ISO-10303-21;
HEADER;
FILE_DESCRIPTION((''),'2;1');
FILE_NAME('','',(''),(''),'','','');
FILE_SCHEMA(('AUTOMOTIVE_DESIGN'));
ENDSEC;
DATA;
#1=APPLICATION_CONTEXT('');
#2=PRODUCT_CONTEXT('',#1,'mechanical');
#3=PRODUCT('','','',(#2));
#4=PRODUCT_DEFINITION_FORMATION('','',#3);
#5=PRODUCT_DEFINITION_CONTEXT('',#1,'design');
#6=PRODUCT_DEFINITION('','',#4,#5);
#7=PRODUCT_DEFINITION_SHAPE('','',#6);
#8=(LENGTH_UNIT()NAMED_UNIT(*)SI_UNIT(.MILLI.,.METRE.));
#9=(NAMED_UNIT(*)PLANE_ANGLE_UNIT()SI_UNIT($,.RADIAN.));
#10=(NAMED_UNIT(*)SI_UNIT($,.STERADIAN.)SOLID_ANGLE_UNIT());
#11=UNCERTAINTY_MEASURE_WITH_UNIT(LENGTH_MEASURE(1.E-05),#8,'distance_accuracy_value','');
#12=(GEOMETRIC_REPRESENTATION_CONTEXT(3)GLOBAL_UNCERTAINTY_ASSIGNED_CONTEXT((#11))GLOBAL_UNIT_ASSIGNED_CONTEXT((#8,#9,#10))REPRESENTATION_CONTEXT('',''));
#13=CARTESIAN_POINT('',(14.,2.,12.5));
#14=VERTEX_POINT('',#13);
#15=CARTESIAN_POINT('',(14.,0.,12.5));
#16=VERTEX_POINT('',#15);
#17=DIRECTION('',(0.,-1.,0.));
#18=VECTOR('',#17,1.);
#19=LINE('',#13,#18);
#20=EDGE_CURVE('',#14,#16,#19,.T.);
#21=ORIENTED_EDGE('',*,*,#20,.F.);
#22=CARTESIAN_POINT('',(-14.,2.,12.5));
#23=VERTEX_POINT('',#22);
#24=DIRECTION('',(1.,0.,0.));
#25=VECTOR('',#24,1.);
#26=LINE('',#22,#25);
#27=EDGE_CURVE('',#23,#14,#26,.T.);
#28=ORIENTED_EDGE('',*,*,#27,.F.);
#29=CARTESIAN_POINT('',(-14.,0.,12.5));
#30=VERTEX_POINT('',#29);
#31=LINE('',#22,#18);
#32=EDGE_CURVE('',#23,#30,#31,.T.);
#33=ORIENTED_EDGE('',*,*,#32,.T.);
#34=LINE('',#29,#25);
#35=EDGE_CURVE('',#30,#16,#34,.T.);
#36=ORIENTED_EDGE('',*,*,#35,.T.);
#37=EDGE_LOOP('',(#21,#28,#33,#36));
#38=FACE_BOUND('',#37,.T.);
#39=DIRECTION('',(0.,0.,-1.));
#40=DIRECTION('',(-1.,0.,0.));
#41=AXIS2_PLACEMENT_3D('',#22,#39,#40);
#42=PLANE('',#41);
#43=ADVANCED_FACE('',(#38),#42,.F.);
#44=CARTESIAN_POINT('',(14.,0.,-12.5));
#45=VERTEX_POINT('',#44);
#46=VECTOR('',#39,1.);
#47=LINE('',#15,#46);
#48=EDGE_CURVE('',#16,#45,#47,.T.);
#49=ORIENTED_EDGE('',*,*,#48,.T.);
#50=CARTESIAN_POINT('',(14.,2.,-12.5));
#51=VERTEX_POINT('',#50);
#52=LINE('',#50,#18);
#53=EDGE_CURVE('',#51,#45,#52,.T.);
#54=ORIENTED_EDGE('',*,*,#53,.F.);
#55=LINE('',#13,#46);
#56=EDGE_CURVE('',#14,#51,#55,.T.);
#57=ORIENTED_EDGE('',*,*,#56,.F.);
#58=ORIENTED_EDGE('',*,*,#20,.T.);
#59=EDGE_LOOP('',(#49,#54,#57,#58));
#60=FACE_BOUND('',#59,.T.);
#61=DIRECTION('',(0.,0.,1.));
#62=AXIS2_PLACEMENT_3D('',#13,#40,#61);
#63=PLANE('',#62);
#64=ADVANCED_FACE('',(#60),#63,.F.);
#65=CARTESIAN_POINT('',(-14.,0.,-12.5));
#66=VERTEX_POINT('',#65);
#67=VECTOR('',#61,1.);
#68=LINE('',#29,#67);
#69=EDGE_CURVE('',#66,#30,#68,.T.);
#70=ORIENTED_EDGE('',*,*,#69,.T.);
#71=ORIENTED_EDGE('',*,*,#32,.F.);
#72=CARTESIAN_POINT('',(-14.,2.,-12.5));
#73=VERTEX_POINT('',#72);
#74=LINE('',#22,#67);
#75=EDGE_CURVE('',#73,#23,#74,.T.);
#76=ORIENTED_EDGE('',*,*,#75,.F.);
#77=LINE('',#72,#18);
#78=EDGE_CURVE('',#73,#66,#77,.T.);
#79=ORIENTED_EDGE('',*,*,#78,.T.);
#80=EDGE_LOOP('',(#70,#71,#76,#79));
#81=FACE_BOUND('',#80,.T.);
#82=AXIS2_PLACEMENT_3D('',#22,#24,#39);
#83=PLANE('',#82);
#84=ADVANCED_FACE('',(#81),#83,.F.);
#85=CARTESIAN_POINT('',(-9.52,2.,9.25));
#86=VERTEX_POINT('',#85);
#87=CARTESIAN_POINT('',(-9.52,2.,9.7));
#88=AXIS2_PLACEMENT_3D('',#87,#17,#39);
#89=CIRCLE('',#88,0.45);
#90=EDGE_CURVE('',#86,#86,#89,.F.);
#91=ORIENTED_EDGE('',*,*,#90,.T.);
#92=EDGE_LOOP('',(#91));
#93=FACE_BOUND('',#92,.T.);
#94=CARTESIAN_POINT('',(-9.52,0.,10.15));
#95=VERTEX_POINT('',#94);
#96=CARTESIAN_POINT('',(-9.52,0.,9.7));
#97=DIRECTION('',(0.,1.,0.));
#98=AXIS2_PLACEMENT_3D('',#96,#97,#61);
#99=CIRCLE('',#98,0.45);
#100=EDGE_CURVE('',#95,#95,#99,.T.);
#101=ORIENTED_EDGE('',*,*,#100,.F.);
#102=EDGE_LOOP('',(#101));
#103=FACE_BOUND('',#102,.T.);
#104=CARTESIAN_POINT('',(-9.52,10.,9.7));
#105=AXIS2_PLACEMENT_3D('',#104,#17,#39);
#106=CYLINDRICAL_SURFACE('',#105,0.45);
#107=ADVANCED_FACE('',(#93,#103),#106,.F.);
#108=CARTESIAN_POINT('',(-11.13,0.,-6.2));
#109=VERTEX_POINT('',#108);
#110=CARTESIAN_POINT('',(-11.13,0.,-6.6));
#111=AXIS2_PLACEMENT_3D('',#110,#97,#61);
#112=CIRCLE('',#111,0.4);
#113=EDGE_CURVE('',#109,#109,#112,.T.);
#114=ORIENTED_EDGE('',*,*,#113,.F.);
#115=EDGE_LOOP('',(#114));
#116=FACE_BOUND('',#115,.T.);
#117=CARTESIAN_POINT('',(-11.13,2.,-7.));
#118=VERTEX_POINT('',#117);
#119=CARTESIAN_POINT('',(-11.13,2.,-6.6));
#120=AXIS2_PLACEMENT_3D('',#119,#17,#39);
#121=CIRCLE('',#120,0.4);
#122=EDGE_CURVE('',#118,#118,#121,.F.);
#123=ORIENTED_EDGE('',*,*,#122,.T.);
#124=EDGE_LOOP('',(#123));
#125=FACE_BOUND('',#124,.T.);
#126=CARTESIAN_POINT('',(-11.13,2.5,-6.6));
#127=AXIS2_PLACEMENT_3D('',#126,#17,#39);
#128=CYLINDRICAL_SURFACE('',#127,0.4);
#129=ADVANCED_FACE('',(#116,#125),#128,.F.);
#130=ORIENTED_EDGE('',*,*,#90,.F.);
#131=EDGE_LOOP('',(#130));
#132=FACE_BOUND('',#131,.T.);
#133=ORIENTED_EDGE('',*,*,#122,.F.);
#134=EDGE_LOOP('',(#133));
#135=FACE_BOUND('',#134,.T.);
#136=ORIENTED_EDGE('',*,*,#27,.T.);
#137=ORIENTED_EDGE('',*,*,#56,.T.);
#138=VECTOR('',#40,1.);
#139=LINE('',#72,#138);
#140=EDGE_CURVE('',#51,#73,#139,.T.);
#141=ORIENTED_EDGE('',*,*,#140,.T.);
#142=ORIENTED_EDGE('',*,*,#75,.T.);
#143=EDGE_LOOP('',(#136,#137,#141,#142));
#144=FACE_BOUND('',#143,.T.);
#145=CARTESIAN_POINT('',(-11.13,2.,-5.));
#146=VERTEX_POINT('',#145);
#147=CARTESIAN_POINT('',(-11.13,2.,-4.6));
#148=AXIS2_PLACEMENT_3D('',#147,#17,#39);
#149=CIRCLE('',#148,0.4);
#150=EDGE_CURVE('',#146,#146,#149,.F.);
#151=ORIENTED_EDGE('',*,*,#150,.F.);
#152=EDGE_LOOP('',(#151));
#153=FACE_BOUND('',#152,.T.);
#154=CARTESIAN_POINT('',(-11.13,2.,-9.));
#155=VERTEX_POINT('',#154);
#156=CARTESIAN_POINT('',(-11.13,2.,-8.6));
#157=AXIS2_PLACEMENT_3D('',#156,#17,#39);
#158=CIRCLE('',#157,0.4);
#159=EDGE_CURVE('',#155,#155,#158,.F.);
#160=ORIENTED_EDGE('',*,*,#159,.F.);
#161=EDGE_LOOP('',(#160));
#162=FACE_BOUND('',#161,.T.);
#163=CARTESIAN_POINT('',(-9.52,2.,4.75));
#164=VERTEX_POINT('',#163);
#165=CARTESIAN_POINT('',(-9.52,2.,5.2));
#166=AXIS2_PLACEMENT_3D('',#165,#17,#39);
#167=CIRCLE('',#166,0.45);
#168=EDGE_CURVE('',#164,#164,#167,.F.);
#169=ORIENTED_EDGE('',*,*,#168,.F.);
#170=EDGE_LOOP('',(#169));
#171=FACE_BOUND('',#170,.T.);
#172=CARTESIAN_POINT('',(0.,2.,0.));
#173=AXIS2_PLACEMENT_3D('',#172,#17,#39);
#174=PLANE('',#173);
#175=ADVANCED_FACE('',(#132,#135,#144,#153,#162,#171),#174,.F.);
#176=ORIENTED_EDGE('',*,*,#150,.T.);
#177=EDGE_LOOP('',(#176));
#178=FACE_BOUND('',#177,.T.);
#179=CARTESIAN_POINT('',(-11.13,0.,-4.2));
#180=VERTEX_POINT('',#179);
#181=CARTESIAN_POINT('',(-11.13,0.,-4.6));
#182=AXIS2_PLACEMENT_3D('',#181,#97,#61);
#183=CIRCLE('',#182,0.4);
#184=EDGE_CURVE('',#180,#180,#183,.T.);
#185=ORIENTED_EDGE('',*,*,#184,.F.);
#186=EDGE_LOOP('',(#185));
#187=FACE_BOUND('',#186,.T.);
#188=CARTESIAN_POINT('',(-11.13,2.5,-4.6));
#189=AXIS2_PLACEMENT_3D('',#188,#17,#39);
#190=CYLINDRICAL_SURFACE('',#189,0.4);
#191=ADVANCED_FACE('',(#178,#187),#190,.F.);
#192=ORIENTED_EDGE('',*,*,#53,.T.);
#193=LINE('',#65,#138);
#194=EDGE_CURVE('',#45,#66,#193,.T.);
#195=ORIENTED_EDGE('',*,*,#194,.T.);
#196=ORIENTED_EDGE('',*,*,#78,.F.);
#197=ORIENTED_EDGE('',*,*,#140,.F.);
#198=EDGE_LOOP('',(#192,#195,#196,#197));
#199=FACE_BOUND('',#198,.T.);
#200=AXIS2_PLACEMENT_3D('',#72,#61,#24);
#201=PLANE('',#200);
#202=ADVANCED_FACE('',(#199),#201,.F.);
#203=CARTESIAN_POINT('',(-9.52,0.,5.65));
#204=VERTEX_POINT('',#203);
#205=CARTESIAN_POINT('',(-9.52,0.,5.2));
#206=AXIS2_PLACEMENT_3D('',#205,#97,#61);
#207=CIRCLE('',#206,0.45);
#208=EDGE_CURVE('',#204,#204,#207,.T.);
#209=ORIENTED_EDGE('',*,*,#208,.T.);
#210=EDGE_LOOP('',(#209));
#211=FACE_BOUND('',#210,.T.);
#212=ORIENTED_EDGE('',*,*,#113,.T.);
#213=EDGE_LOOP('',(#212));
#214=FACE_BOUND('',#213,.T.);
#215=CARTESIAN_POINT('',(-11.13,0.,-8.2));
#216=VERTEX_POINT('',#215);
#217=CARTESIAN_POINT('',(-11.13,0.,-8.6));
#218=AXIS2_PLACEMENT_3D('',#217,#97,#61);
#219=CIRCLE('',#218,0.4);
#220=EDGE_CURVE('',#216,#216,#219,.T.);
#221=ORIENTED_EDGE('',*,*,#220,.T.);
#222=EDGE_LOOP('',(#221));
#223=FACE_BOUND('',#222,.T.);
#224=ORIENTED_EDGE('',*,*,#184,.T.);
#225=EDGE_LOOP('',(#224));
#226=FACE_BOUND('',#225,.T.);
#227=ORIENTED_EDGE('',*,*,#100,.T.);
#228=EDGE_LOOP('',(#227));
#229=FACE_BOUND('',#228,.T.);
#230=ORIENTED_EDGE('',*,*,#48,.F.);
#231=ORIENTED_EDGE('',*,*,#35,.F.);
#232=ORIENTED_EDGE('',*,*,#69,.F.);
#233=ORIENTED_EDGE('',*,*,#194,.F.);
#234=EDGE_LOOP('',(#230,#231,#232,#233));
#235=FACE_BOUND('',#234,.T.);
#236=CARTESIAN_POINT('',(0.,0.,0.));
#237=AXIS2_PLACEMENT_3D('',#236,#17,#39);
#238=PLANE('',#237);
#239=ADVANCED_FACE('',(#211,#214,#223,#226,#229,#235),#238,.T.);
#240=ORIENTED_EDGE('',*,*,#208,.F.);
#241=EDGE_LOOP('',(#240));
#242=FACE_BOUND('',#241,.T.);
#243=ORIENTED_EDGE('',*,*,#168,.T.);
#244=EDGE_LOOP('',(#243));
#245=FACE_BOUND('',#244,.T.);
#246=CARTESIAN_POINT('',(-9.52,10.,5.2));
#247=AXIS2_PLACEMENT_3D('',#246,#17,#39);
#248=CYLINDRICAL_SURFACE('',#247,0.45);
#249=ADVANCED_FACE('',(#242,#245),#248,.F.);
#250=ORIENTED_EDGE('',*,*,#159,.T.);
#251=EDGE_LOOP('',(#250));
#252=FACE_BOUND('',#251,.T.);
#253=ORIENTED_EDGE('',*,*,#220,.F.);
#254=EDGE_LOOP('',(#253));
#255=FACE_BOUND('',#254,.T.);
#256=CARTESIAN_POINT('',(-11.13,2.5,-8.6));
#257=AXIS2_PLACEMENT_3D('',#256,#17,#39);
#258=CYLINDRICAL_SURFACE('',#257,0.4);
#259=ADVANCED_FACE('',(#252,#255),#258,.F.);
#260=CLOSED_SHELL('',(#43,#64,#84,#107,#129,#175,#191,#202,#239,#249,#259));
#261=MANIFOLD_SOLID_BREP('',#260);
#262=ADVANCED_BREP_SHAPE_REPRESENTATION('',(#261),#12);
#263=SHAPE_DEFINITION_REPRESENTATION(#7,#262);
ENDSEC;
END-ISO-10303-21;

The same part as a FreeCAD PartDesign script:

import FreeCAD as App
import Part
import Sketcher
Q = App.Units.Quantity


def add_polygon(sketch, points):
    """Adds a closed chain of lines whose ends are joined by coincident constraints."""
    first, n = sketch.GeometryCount, len(points)
    for a, b in zip(points, points[1:] + points[:1]):
        sketch.addGeometry(Part.LineSegment(App.Vector(*a, 0), App.Vector(*b, 0)), False)
    for i in range(n):
        sketch.addConstraint(Sketcher.Constraint("Coincident", first + i, 2, first + (i + 1) % n, 1))

doc = App.newDocument("Part")
body = doc.addObject("PartDesign::Body", "Body")

sketch1 = body.newObject("Sketcher::SketchObject", "Sketch")
sketch1.AttachmentSupport = (doc.getObject("XZ_Plane"), [""])
sketch1.MapMode = "FlatFace"
add_polygon(sketch1, [(-14, -12), (-14, 12), (14, 12), (14, -12)])
sketch1.addConstraint([
    Sketcher.Constraint("Vertical", 0),
    Sketcher.Constraint("Horizontal", 1),
    Sketcher.Constraint("Vertical", 2),
    Sketcher.Constraint("Horizontal", 3),
    Sketcher.Constraint("Symmetric", 0, 2, 2, 2, -1, 1),
    Sketcher.Constraint("DistanceX", 1, 1, 1, 2, Q("28 mm")),
    Sketcher.Constraint("DistanceY", 0, 1, 0, 2, Q("25 mm")),
])
pad1 = body.newObject("PartDesign::Pad", "Pad")
pad1.Profile = sketch1
pad1.Length = 2
pad1.Reversed = True

sketch2 = body.newObject("Sketcher::SketchObject", "Sketch001")
sketch2.AttachmentSupport = (doc.getObject("XZ_Plane"), [""])
sketch2.MapMode = "FlatFace"
sketch2.addGeometry([
    Part.Circle(App.Vector(-9.52, 5.2, 0), App.Vector(0, 0, 1), 0.45),
    Part.Circle(App.Vector(-9.52, 9.7, 0), App.Vector(0, 0, 1), 0.45),
], False)
sketch2.addConstraint([
    Sketcher.Constraint("Equal", 0, 1),
    Sketcher.Constraint("Vertical", 0, 3, 1, 3),
    Sketcher.Constraint("Diameter", 0, Q("0.9 mm")),
    Sketcher.Constraint("DistanceY", -1, 1, 0, 3, Q("5.2 mm")),
    Sketcher.Constraint("DistanceY", -1, 1, 1, 3, Q("9.7 mm")),
    Sketcher.Constraint("DistanceX", 0, 3, -1, 1, Q("9.52 mm")),
])
pocket1 = body.newObject("PartDesign::Pocket", "Pocket")
pocket1.Profile = sketch2
pocket1.Length = 10

sketch3 = body.newObject("Sketcher::SketchObject", "Sketch002")
sketch3.AttachmentSupport = (doc.getObject("XZ_Plane"), [""])
sketch3.MapMode = "FlatFace"
sketch3.addGeometry([
    Part.Circle(App.Vector(-11.13, -6.6, 0), App.Vector(0, 0, 1), 0.4),
    Part.Circle(App.Vector(-11.13, -8.6, 0), App.Vector(0, 0, 1), 0.4),
    Part.Circle(App.Vector(-11.13, -4.6, 0), App.Vector(0, 0, 1), 0.4),
], False)
sketch3.addConstraint([
    Sketcher.Constraint("Equal", 0, 1),
    Sketcher.Constraint("Equal", 1, 2),
    Sketcher.Constraint("Vertical", 0, 3, 1, 3),
    Sketcher.Constraint("Vertical", 1, 3, 2, 3),
    Sketcher.Constraint("Diameter", 0, Q("0.8 mm")),
    Sketcher.Constraint("DistanceY", 1, 3, 0, 3, Q("2 mm")),
    Sketcher.Constraint("DistanceY", 0, 3, 2, 3, Q("2 mm")),
    Sketcher.Constraint("DistanceY", 0, 3, -1, 1, Q("6.6 mm")),
    Sketcher.Constraint("DistanceX", 0, 3, -1, 1, Q("11.13 mm")),
])
pocket2 = body.newObject("PartDesign::Pocket", "Pocket001")
pocket2.Profile = sketch3
pocket2.Length = 2.5

doc.recompute()
